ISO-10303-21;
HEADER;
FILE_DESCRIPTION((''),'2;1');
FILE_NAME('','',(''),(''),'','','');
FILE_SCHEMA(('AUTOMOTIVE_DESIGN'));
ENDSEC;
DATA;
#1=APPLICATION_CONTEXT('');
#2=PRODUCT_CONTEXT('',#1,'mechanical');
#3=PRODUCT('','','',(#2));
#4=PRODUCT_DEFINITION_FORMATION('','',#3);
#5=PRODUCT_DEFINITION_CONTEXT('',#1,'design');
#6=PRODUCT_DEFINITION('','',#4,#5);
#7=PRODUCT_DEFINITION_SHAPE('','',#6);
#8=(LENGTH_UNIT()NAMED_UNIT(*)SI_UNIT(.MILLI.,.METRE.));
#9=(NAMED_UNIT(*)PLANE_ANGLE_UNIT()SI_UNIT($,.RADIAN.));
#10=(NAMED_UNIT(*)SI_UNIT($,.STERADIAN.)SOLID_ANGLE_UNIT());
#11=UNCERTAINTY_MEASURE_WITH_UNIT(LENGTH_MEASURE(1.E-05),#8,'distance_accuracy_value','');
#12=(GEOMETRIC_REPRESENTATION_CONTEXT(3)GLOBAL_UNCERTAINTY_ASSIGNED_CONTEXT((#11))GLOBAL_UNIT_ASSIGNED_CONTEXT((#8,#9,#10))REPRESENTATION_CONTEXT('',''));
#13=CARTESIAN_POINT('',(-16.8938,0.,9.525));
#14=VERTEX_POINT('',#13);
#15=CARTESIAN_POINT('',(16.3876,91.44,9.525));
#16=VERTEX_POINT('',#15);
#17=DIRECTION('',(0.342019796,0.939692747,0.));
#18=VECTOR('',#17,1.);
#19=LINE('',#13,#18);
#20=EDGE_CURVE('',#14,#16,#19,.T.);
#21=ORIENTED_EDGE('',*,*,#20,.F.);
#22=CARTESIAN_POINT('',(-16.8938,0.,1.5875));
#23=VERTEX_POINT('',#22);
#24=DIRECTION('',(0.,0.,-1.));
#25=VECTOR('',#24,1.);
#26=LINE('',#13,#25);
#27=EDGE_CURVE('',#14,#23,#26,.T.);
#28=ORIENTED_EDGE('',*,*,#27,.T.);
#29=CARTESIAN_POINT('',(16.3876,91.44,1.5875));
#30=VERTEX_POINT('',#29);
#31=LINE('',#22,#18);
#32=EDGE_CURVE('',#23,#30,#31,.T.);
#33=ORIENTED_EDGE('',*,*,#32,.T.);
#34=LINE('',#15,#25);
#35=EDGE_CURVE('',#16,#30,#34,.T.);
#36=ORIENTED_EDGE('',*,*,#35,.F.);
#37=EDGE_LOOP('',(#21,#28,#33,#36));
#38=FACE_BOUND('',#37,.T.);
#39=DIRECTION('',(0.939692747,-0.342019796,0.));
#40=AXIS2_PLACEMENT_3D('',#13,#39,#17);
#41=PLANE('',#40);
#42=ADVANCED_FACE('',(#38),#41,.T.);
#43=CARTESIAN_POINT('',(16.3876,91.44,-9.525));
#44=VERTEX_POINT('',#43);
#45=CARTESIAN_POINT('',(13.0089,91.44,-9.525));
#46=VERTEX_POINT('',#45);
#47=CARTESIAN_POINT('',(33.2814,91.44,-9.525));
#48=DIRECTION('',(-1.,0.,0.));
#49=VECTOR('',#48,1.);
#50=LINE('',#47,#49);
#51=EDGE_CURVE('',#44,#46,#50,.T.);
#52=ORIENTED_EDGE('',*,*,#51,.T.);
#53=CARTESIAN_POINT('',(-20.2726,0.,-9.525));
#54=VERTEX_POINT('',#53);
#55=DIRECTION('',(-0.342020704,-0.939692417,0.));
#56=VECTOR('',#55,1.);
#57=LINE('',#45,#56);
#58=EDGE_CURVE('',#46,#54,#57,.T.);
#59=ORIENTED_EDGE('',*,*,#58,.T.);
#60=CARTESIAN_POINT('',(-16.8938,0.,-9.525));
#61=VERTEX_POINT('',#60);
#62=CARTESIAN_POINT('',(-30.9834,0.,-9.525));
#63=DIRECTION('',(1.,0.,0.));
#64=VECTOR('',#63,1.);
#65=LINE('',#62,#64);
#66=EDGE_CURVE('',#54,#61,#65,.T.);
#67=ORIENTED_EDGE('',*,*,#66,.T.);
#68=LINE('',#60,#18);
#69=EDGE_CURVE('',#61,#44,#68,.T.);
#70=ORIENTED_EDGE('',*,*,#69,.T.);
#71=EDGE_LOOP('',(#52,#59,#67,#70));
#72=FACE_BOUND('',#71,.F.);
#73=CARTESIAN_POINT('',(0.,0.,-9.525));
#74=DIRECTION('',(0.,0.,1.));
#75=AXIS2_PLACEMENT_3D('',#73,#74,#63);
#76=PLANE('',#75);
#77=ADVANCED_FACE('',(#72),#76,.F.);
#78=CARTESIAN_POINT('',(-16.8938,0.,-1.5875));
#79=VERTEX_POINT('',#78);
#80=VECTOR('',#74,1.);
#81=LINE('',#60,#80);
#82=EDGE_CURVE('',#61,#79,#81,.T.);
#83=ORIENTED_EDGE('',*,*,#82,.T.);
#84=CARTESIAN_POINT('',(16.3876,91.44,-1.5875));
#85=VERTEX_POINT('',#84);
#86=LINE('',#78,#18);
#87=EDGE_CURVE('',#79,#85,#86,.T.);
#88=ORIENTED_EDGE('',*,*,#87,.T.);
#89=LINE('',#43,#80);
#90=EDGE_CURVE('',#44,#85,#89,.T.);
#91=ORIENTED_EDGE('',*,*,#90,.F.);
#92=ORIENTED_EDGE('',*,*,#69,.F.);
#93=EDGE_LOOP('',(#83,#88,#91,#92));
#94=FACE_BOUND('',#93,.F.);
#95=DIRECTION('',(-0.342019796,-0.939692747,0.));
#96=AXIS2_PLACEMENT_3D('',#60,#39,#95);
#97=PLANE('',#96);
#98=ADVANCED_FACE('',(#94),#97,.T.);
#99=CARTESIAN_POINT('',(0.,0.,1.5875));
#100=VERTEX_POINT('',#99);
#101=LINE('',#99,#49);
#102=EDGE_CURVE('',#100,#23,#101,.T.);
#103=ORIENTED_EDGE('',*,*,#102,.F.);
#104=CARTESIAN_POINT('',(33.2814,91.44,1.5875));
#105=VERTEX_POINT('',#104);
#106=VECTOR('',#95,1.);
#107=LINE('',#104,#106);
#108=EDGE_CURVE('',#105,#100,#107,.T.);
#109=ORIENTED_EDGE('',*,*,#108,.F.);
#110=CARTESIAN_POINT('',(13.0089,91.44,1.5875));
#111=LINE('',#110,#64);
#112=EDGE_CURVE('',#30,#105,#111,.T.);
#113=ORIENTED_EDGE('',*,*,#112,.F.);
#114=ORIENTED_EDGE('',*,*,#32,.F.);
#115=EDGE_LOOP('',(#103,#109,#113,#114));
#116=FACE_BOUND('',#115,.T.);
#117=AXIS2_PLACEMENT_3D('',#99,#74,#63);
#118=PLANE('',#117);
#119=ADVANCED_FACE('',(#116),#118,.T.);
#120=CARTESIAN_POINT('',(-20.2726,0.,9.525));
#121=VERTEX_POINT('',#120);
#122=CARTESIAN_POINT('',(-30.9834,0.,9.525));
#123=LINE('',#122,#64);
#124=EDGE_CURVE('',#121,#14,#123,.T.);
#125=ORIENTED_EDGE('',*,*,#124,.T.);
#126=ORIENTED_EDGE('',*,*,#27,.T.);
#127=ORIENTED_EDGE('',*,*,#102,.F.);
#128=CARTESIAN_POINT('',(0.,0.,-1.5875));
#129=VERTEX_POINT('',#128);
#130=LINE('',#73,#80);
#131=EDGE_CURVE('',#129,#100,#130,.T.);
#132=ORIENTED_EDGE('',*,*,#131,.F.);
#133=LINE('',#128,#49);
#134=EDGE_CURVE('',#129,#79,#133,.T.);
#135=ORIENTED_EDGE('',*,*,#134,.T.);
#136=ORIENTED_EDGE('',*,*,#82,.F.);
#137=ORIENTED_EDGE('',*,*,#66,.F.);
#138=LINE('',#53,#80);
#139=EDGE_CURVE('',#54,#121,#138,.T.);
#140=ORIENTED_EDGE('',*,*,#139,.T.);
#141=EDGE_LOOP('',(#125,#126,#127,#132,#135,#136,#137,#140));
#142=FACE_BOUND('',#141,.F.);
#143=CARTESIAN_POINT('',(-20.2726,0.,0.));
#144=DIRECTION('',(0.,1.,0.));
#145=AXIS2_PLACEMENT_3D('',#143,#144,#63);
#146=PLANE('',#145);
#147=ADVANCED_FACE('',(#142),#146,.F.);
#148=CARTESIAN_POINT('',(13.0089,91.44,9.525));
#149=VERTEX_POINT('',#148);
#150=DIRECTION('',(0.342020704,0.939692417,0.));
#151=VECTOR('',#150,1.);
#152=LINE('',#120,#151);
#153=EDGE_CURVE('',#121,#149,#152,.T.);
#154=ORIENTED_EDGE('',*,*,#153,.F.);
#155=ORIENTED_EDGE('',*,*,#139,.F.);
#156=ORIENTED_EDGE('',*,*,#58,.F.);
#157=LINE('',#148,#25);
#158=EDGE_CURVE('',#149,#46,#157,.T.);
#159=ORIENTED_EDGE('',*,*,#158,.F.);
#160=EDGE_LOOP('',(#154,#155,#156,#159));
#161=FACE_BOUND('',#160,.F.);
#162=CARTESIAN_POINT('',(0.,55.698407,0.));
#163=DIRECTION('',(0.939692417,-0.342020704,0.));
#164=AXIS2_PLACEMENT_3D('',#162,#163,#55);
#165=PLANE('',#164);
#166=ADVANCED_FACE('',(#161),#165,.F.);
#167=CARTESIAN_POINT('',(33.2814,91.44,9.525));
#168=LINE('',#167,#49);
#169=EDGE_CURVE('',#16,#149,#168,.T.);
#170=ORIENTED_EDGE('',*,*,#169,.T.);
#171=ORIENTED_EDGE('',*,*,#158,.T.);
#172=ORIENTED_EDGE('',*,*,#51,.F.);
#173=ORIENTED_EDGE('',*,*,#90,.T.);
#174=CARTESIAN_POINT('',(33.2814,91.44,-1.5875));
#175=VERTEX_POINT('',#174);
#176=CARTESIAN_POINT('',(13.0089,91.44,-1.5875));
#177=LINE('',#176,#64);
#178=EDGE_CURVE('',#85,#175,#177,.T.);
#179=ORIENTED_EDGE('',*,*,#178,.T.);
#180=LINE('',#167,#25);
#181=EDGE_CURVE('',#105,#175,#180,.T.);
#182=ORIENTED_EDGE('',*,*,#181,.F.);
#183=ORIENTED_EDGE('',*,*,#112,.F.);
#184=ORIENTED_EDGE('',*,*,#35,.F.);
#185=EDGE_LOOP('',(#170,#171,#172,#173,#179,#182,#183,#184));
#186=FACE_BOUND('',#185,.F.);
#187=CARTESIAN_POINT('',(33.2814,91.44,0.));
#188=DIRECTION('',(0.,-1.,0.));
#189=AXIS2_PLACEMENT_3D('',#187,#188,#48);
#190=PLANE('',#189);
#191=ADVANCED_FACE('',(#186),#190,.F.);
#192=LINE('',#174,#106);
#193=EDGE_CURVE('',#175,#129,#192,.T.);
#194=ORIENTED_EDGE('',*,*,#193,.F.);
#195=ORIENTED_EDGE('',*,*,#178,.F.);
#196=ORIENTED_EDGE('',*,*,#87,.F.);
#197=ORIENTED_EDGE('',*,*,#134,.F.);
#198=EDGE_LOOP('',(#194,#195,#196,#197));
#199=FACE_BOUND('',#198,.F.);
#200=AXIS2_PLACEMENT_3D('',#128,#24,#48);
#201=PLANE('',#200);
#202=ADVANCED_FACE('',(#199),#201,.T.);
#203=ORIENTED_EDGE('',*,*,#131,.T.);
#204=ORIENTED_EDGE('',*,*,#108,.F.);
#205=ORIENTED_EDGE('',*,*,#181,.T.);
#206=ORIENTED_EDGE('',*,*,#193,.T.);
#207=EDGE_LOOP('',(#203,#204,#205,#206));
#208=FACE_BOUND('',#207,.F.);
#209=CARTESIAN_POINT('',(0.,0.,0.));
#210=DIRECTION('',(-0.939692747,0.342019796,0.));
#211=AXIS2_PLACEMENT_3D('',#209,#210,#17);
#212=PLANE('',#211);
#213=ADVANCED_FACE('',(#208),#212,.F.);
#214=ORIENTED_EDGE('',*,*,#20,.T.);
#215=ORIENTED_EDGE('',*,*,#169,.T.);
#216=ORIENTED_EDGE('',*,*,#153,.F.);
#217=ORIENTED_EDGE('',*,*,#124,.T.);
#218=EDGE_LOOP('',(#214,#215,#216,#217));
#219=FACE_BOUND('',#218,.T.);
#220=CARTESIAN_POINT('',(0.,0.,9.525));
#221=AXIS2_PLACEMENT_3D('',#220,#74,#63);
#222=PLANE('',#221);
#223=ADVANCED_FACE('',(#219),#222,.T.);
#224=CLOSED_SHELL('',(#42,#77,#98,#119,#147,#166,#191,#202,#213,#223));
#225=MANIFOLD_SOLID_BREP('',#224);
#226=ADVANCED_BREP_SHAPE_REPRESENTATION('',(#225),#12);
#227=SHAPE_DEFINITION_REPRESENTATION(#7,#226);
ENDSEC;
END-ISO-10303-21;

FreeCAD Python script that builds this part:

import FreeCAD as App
import Part
import Sketcher
Q = App.Units.Quantity

doc = App.newDocument("Part")
body = doc.addObject("PartDesign::Body", "Body")

# Sketch on XY plane
sketch1 = body.newObject("Sketcher::SketchObject", "Sketch")
sketch1.AttachmentSupport = (doc.getObject("XY_Plane"), [""])
sketch1.MapMode = "FlatFace"
sketch1.addGeometry([
    Part.LineSegment(App.Vector(-20, 0, 0), App.Vector(0, 0, 0)),
    Part.LineSegment(App.Vector(0, 0, 0), App.Vector(33, 91, 0)),
    Part.LineSegment(App.Vector(33, 91, 0), App.Vector(13, 91, 0)),
    Part.LineSegment(App.Vector(13, 91, 0), App.Vector(-20, 0, 0)),
], False)
sketch1.addConstraint([
    Sketcher.Constraint("Coincident", 0, 2, 1, 1),
    Sketcher.Constraint("Coincident", 1, 2, 2, 1),
    Sketcher.Constraint("Coincident", 2, 2, 3, 1),
    Sketcher.Constraint("Coincident", 3, 2, 0, 1),
    Sketcher.Constraint("Horizontal", 0),
    Sketcher.Constraint("Horizontal", 2),
    Sketcher.Constraint("Coincident", 0, 2, -1, 1),
    Sketcher.Constraint("Parallel", 1, 3),
    Sketcher.Constraint("DistanceY", -1, 1, 1, 2, Q("3.6 in")),
    Sketcher.Constraint("Angle", 1, Q("70 deg")),
    Sketcher.Constraint("DistanceX", 0, 1, 0, 2, 20.2726),
])
pad1 = body.newObject("PartDesign::Pad", "Pad")
pad1.Profile = sketch1
pad1.Length = Q("0.75 in")
pad1.Midplane = True

# Sketch on XY plane
sketch2 = body.newObject("Sketcher::SketchObject", "Sketch001")
sketch2.AttachmentSupport = (doc.getObject("XY_Plane"), [""])
sketch2.MapMode = "FlatFace"
sketch2.AttachmentOffset = App.Placement(App.Vector(0, 0, 0.375 * 25.4), App.Rotation())
sketch2.addGeometry([
    Part.LineSegment(App.Vector(16, 91, 0), App.Vector(-17, 0, 0)),
    Part.LineSegment(App.Vector(-17, 0, 0), App.Vector(0, 0, 0)),
    Part.LineSegment(App.Vector(0, 0, 0), App.Vector(33, 91, 0)),
    Part.LineSegment(App.Vector(33, 91, 0), App.Vector(16, 91, 0)),
], False)
sketch2.addConstraint([
    Sketcher.Constraint("Coincident", 0, 2, 1, 1),
    Sketcher.Constraint("Coincident", 1, 2, 2, 1),
    Sketcher.Constraint("Coincident", 2, 2, 3, 1),
    Sketcher.Constraint("Coincident", 3, 2, 0, 1),
    Sketcher.Constraint("Horizontal", 1),
    Sketcher.Constraint("Horizontal", 3),
    Sketcher.Constraint("Coincident", 1, 2, -1, 1),
    Sketcher.Constraint("Parallel", 0, 2),
    Sketcher.Constraint("Angle", 0, Q("-110 deg")),
    Sketcher.Constraint("DistanceY", -1, 1, 2, 2, Q("3.6 in")),
    Sketcher.Constraint("DistanceX", 1, 1, 1, 2, Q("0.6651 in")),
])
pocket1 = body.newObject("PartDesign::Pocket", "Pocket")
pocket1.Profile = sketch2
pocket1.Length = Q("0.3125 in")
doc.recompute()

mirrored = body.newObject("PartDesign::Mirrored", "Mirrored")
mirrored.Originals = [pocket1]
mirrored.MirrorPlane = (doc.getObject("XY_Plane"), [""])
body.Tip = mirrored

doc.recompute()
